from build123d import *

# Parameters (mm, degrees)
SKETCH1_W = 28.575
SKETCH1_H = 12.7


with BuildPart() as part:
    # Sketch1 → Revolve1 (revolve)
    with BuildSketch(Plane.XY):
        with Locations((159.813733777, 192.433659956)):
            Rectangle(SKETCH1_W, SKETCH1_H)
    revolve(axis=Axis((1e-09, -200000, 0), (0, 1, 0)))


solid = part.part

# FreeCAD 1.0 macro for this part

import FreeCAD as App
import Part
import Sketcher

V = App.Vector
Q = App.Units.Quantity

doc = App.newDocument("Part")
body = doc.addObject("PartDesign::Body", "Body")

sketch1 = body.newObject("Sketcher::SketchObject", "Sketch")
sketch1.AttachmentSupport = (doc.getObject("XY_Plane"), [""])
sketch1.MapMode = "FlatFace"
sketch1.addGeometry(Part.LineSegment(V(146, 199, 0), V(146, 186, 0)), False)
sketch1.addGeometry(Part.LineSegment(V(146, 186, 0), V(174, 186, 0)), False)
sketch1.addGeometry(Part.LineSegment(V(174, 186, 0), V(174, 199, 0)), False)
sketch1.addGeometry(Part.LineSegment(V(174, 199, 0), V(146, 199, 0)), False)
sketch1.addConstraint(Sketcher.Constraint("Coincident", 0, 2, 1, 1))
sketch1.addConstraint(Sketcher.Constraint("Coincident", 1, 2, 2, 1))
sketch1.addConstraint(Sketcher.Constraint("Coincident", 2, 2, 3, 1))
sketch1.addConstraint(Sketcher.Constraint("Coincident", 3, 2, 0, 1))
sketch1.addConstraint(Sketcher.Constraint("Vertical", 0))
sketch1.addConstraint(Sketcher.Constraint("Horizontal", 1))
sketch1.addConstraint(Sketcher.Constraint("Vertical", 2))
sketch1.addConstraint(Sketcher.Constraint("Horizontal", 3))
sketch1.addConstraint(Sketcher.Constraint("DistanceY", 0, 2, 0, 1, Q("0.5 in")))
sketch1.addConstraint(Sketcher.Constraint("DistanceX", 1, 1, 1, 2, Q("1.125 in")))
sketch1.addConstraint(Sketcher.Constraint("DistanceY", -1, 1, 0, 2, Q("186.08366 mm")))
sketch1.addConstraint(Sketcher.Constraint("DistanceX", -1, 1, 0, 2, Q("145.526234 mm")))
revolution = body.newObject("PartDesign::Revolution", "Revolution")
revolution.Profile = sketch1
revolution.ReferenceAxis = (sketch1, ["V_Axis"])
revolution.Angle = 360

doc.recompute()
